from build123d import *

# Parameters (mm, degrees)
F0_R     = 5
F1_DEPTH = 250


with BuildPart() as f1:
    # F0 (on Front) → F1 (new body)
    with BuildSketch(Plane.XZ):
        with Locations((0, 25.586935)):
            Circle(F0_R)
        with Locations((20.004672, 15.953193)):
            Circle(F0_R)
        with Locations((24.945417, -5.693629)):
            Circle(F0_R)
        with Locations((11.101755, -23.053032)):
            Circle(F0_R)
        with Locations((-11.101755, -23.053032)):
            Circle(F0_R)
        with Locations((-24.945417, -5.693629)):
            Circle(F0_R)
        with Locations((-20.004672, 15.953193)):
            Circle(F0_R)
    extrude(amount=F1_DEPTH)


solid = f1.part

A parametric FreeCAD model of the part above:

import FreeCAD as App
import Part
import Sketcher

doc = App.newDocument("Part")
body = doc.addObject("PartDesign::Body", "Body")
body.AllowCompound = True

# Sketch on XZ plane
sketch1 = body.newObject("Sketcher::SketchObject", "Sketch")
sketch1.AttachmentSupport = (doc.getObject("XZ_Plane"), [""])
sketch1.MapMode = "FlatFace"
sketch1.addGeometry(Part.Circle(App.Vector(0, 25.586935, 0), App.Vector(0, 0, 1), 5), False)
sketch1.addGeometry(Part.Circle(App.Vector(20.004672, 15.953193, 0), App.Vector(0, 0, 1), 5), False)
sketch1.addGeometry(Part.Circle(App.Vector(24.945417, -5.693629, 0), App.Vector(0, 0, 1), 5), False)
sketch1.addGeometry(Part.Circle(App.Vector(11.101755, -23.053032, 0), App.Vector(0, 0, 1), 5), False)
sketch1.addGeometry(Part.Circle(App.Vector(-11.101755, -23.053032, 0), App.Vector(0, 0, 1), 5), False)
sketch1.addGeometry(Part.Circle(App.Vector(-24.945417, -5.693629, 0), App.Vector(0, 0, 1), 5), False)
sketch1.addGeometry(Part.Circle(App.Vector(-20.004672, 15.953193, 0), App.Vector(0, 0, 1), 5), False)
sketch1.addConstraint(Sketcher.Constraint("Equal", 0, 1))
sketch1.addConstraint(Sketcher.Constraint("Equal", 1, 2))
sketch1.addConstraint(Sketcher.Constraint("Equal", 2, 3))
sketch1.addConstraint(Sketcher.Constraint("Equal", 3, 4))
sketch1.addConstraint(Sketcher.Constraint("Equal", 4, 5))
sketch1.addConstraint(Sketcher.Constraint("Equal", 5, 6))
sketch1.addConstraint(Sketcher.Constraint("Symmetric", 3, 3, 4, 3, -2))
sketch1.addConstraint(Sketcher.Constraint("Symmetric", 2, 3, 5, 3, -2))
sketch1.addConstraint(Sketcher.Constraint("Symmetric", 1, 3, 6, 3, -2))
sketch1.addConstraint(Sketcher.Constraint("PointOnObject", 0, 3, -2))
sketch1.addConstraint(Sketcher.Constraint("Diameter", 0, 10.0))
sketch1.addConstraint(Sketcher.Constraint("DistanceX", -1, 1, 1, 3, 20.004672))
sketch1.addConstraint(Sketcher.Constraint("DistanceY", 2, 3, -1, 1, 5.693629))
sketch1.addConstraint(Sketcher.Constraint("DistanceY", 2, 3, 1, 3, 21.646822))
sketch1.addConstraint(Sketcher.Constraint("DistanceX", 3, 3, 2, 3, 13.843662))
sketch1.addConstraint(Sketcher.Constraint("DistanceX", 4, 3, 3, 3, 22.20351))
sketch1.addConstraint(Sketcher.Constraint("DistanceY", -1, 1, 0, 3, 25.586935))
sketch1.addConstraint(Sketcher.Constraint("DistanceY", 3, 3, -1, 1, 23.053032))
pad1 = body.newObject("PartDesign::Pad", "Pad")
pad1.Profile = sketch1
pad1.Length = 250

doc.recompute()
